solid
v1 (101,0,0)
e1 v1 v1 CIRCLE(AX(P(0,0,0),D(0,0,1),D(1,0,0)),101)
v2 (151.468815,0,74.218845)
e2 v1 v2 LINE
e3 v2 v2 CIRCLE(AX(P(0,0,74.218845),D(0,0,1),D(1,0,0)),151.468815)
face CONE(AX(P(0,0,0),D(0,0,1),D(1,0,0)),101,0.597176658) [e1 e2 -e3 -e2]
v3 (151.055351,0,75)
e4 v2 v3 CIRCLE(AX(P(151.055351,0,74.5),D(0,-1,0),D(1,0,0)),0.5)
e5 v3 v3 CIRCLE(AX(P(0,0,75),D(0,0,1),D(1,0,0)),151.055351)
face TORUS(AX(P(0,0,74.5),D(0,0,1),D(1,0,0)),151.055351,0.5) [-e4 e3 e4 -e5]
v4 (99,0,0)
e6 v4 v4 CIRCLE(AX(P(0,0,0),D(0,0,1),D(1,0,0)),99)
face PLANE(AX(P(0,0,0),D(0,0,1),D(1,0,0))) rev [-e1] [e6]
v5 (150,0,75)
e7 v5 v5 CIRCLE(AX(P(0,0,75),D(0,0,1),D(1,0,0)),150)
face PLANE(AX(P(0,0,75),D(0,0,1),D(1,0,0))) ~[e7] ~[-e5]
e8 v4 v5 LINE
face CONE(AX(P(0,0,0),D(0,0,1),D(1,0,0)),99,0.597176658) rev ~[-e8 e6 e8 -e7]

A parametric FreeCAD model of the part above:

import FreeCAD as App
import Part
import Sketcher
Q = App.Units.Quantity


def edges_at(feature, points):
    """Names of the edges that pass closest to the given points."""
    edges = feature.Shape.Edges
    near = lambda p: min(range(len(edges)), key=lambda i: edges[i].distToShape(Part.Vertex(*p))[0])
    return sorted({f"Edge{near(p) + 1}" for p in points})

doc = App.newDocument("Part")
body = doc.addObject("PartDesign::Body", "Body")

# Sketch on XZ plane
sketch1 = doc.addObject("Sketcher::SketchObject", "Sketch")
body.addObject(sketch1)
sketch1.AttachmentSupport = (doc.XZ_Plane, [""])
sketch1.MapMode = "FlatFace"
sketch1.addGeometry(Part.LineSegment(App.Vector(101, 0, 0), App.Vector(99, 0, 0)), False)
sketch1.addGeometry(Part.LineSegment(App.Vector(99, 0, 0), App.Vector(150, 75, 0)), False)
sketch1.addGeometry(Part.LineSegment(App.Vector(150, 75, 0), App.Vector(152, 75, 0)), False)
sketch1.addGeometry(Part.LineSegment(App.Vector(152, 75, 0), App.Vector(101, 0, 0)), False)
sketch1.addConstraint(Sketcher.Constraint("Coincident", 0, 2, 1, 1))
sketch1.addConstraint(Sketcher.Constraint("Coincident", 1, 2, 2, 1))
sketch1.addConstraint(Sketcher.Constraint("Coincident", 2, 2, 3, 1))
sketch1.addConstraint(Sketcher.Constraint("Coincident", 3, 2, 0, 1))
sketch1.addConstraint(Sketcher.Constraint("Horizontal", 0))
sketch1.addConstraint(Sketcher.Constraint("Horizontal", 2))
sketch1.addConstraint(Sketcher.Constraint("PointOnObject", 0, 2, -1))
sketch1.addConstraint(Sketcher.Constraint("Parallel", 1, 3))
sketch1.addConstraint(Sketcher.Constraint("DistanceX", 0, 2, 0, 1, Q("2 mm")))
sketch1.addConstraint(Sketcher.Constraint("DistanceX", -1, 1, 0, 2, Q("99 mm")))
sketch1.addConstraint(Sketcher.Constraint("DistanceX", -1, 1, 1, 2, Q("150 mm")))
sketch1.addConstraint(Sketcher.Constraint("DistanceY", -1, 1, 1, 2, Q("75 mm")))
revolution = doc.addObject("PartDesign::Revolution", "Revolution")
body.addObject(revolution)
revolution.Profile = sketch1
revolution.ReferenceAxis = (sketch1, ["V_Axis"])
revolution.Angle = 360
doc.recompute()

fillet = doc.addObject("PartDesign::Fillet", "Fillet")
body.addObject(fillet)
fillet.Base = (revolution, edges_at(revolution, [(-141.714, -54.965, 75)]))
fillet.Radius = 0.5

doc.recompute()
